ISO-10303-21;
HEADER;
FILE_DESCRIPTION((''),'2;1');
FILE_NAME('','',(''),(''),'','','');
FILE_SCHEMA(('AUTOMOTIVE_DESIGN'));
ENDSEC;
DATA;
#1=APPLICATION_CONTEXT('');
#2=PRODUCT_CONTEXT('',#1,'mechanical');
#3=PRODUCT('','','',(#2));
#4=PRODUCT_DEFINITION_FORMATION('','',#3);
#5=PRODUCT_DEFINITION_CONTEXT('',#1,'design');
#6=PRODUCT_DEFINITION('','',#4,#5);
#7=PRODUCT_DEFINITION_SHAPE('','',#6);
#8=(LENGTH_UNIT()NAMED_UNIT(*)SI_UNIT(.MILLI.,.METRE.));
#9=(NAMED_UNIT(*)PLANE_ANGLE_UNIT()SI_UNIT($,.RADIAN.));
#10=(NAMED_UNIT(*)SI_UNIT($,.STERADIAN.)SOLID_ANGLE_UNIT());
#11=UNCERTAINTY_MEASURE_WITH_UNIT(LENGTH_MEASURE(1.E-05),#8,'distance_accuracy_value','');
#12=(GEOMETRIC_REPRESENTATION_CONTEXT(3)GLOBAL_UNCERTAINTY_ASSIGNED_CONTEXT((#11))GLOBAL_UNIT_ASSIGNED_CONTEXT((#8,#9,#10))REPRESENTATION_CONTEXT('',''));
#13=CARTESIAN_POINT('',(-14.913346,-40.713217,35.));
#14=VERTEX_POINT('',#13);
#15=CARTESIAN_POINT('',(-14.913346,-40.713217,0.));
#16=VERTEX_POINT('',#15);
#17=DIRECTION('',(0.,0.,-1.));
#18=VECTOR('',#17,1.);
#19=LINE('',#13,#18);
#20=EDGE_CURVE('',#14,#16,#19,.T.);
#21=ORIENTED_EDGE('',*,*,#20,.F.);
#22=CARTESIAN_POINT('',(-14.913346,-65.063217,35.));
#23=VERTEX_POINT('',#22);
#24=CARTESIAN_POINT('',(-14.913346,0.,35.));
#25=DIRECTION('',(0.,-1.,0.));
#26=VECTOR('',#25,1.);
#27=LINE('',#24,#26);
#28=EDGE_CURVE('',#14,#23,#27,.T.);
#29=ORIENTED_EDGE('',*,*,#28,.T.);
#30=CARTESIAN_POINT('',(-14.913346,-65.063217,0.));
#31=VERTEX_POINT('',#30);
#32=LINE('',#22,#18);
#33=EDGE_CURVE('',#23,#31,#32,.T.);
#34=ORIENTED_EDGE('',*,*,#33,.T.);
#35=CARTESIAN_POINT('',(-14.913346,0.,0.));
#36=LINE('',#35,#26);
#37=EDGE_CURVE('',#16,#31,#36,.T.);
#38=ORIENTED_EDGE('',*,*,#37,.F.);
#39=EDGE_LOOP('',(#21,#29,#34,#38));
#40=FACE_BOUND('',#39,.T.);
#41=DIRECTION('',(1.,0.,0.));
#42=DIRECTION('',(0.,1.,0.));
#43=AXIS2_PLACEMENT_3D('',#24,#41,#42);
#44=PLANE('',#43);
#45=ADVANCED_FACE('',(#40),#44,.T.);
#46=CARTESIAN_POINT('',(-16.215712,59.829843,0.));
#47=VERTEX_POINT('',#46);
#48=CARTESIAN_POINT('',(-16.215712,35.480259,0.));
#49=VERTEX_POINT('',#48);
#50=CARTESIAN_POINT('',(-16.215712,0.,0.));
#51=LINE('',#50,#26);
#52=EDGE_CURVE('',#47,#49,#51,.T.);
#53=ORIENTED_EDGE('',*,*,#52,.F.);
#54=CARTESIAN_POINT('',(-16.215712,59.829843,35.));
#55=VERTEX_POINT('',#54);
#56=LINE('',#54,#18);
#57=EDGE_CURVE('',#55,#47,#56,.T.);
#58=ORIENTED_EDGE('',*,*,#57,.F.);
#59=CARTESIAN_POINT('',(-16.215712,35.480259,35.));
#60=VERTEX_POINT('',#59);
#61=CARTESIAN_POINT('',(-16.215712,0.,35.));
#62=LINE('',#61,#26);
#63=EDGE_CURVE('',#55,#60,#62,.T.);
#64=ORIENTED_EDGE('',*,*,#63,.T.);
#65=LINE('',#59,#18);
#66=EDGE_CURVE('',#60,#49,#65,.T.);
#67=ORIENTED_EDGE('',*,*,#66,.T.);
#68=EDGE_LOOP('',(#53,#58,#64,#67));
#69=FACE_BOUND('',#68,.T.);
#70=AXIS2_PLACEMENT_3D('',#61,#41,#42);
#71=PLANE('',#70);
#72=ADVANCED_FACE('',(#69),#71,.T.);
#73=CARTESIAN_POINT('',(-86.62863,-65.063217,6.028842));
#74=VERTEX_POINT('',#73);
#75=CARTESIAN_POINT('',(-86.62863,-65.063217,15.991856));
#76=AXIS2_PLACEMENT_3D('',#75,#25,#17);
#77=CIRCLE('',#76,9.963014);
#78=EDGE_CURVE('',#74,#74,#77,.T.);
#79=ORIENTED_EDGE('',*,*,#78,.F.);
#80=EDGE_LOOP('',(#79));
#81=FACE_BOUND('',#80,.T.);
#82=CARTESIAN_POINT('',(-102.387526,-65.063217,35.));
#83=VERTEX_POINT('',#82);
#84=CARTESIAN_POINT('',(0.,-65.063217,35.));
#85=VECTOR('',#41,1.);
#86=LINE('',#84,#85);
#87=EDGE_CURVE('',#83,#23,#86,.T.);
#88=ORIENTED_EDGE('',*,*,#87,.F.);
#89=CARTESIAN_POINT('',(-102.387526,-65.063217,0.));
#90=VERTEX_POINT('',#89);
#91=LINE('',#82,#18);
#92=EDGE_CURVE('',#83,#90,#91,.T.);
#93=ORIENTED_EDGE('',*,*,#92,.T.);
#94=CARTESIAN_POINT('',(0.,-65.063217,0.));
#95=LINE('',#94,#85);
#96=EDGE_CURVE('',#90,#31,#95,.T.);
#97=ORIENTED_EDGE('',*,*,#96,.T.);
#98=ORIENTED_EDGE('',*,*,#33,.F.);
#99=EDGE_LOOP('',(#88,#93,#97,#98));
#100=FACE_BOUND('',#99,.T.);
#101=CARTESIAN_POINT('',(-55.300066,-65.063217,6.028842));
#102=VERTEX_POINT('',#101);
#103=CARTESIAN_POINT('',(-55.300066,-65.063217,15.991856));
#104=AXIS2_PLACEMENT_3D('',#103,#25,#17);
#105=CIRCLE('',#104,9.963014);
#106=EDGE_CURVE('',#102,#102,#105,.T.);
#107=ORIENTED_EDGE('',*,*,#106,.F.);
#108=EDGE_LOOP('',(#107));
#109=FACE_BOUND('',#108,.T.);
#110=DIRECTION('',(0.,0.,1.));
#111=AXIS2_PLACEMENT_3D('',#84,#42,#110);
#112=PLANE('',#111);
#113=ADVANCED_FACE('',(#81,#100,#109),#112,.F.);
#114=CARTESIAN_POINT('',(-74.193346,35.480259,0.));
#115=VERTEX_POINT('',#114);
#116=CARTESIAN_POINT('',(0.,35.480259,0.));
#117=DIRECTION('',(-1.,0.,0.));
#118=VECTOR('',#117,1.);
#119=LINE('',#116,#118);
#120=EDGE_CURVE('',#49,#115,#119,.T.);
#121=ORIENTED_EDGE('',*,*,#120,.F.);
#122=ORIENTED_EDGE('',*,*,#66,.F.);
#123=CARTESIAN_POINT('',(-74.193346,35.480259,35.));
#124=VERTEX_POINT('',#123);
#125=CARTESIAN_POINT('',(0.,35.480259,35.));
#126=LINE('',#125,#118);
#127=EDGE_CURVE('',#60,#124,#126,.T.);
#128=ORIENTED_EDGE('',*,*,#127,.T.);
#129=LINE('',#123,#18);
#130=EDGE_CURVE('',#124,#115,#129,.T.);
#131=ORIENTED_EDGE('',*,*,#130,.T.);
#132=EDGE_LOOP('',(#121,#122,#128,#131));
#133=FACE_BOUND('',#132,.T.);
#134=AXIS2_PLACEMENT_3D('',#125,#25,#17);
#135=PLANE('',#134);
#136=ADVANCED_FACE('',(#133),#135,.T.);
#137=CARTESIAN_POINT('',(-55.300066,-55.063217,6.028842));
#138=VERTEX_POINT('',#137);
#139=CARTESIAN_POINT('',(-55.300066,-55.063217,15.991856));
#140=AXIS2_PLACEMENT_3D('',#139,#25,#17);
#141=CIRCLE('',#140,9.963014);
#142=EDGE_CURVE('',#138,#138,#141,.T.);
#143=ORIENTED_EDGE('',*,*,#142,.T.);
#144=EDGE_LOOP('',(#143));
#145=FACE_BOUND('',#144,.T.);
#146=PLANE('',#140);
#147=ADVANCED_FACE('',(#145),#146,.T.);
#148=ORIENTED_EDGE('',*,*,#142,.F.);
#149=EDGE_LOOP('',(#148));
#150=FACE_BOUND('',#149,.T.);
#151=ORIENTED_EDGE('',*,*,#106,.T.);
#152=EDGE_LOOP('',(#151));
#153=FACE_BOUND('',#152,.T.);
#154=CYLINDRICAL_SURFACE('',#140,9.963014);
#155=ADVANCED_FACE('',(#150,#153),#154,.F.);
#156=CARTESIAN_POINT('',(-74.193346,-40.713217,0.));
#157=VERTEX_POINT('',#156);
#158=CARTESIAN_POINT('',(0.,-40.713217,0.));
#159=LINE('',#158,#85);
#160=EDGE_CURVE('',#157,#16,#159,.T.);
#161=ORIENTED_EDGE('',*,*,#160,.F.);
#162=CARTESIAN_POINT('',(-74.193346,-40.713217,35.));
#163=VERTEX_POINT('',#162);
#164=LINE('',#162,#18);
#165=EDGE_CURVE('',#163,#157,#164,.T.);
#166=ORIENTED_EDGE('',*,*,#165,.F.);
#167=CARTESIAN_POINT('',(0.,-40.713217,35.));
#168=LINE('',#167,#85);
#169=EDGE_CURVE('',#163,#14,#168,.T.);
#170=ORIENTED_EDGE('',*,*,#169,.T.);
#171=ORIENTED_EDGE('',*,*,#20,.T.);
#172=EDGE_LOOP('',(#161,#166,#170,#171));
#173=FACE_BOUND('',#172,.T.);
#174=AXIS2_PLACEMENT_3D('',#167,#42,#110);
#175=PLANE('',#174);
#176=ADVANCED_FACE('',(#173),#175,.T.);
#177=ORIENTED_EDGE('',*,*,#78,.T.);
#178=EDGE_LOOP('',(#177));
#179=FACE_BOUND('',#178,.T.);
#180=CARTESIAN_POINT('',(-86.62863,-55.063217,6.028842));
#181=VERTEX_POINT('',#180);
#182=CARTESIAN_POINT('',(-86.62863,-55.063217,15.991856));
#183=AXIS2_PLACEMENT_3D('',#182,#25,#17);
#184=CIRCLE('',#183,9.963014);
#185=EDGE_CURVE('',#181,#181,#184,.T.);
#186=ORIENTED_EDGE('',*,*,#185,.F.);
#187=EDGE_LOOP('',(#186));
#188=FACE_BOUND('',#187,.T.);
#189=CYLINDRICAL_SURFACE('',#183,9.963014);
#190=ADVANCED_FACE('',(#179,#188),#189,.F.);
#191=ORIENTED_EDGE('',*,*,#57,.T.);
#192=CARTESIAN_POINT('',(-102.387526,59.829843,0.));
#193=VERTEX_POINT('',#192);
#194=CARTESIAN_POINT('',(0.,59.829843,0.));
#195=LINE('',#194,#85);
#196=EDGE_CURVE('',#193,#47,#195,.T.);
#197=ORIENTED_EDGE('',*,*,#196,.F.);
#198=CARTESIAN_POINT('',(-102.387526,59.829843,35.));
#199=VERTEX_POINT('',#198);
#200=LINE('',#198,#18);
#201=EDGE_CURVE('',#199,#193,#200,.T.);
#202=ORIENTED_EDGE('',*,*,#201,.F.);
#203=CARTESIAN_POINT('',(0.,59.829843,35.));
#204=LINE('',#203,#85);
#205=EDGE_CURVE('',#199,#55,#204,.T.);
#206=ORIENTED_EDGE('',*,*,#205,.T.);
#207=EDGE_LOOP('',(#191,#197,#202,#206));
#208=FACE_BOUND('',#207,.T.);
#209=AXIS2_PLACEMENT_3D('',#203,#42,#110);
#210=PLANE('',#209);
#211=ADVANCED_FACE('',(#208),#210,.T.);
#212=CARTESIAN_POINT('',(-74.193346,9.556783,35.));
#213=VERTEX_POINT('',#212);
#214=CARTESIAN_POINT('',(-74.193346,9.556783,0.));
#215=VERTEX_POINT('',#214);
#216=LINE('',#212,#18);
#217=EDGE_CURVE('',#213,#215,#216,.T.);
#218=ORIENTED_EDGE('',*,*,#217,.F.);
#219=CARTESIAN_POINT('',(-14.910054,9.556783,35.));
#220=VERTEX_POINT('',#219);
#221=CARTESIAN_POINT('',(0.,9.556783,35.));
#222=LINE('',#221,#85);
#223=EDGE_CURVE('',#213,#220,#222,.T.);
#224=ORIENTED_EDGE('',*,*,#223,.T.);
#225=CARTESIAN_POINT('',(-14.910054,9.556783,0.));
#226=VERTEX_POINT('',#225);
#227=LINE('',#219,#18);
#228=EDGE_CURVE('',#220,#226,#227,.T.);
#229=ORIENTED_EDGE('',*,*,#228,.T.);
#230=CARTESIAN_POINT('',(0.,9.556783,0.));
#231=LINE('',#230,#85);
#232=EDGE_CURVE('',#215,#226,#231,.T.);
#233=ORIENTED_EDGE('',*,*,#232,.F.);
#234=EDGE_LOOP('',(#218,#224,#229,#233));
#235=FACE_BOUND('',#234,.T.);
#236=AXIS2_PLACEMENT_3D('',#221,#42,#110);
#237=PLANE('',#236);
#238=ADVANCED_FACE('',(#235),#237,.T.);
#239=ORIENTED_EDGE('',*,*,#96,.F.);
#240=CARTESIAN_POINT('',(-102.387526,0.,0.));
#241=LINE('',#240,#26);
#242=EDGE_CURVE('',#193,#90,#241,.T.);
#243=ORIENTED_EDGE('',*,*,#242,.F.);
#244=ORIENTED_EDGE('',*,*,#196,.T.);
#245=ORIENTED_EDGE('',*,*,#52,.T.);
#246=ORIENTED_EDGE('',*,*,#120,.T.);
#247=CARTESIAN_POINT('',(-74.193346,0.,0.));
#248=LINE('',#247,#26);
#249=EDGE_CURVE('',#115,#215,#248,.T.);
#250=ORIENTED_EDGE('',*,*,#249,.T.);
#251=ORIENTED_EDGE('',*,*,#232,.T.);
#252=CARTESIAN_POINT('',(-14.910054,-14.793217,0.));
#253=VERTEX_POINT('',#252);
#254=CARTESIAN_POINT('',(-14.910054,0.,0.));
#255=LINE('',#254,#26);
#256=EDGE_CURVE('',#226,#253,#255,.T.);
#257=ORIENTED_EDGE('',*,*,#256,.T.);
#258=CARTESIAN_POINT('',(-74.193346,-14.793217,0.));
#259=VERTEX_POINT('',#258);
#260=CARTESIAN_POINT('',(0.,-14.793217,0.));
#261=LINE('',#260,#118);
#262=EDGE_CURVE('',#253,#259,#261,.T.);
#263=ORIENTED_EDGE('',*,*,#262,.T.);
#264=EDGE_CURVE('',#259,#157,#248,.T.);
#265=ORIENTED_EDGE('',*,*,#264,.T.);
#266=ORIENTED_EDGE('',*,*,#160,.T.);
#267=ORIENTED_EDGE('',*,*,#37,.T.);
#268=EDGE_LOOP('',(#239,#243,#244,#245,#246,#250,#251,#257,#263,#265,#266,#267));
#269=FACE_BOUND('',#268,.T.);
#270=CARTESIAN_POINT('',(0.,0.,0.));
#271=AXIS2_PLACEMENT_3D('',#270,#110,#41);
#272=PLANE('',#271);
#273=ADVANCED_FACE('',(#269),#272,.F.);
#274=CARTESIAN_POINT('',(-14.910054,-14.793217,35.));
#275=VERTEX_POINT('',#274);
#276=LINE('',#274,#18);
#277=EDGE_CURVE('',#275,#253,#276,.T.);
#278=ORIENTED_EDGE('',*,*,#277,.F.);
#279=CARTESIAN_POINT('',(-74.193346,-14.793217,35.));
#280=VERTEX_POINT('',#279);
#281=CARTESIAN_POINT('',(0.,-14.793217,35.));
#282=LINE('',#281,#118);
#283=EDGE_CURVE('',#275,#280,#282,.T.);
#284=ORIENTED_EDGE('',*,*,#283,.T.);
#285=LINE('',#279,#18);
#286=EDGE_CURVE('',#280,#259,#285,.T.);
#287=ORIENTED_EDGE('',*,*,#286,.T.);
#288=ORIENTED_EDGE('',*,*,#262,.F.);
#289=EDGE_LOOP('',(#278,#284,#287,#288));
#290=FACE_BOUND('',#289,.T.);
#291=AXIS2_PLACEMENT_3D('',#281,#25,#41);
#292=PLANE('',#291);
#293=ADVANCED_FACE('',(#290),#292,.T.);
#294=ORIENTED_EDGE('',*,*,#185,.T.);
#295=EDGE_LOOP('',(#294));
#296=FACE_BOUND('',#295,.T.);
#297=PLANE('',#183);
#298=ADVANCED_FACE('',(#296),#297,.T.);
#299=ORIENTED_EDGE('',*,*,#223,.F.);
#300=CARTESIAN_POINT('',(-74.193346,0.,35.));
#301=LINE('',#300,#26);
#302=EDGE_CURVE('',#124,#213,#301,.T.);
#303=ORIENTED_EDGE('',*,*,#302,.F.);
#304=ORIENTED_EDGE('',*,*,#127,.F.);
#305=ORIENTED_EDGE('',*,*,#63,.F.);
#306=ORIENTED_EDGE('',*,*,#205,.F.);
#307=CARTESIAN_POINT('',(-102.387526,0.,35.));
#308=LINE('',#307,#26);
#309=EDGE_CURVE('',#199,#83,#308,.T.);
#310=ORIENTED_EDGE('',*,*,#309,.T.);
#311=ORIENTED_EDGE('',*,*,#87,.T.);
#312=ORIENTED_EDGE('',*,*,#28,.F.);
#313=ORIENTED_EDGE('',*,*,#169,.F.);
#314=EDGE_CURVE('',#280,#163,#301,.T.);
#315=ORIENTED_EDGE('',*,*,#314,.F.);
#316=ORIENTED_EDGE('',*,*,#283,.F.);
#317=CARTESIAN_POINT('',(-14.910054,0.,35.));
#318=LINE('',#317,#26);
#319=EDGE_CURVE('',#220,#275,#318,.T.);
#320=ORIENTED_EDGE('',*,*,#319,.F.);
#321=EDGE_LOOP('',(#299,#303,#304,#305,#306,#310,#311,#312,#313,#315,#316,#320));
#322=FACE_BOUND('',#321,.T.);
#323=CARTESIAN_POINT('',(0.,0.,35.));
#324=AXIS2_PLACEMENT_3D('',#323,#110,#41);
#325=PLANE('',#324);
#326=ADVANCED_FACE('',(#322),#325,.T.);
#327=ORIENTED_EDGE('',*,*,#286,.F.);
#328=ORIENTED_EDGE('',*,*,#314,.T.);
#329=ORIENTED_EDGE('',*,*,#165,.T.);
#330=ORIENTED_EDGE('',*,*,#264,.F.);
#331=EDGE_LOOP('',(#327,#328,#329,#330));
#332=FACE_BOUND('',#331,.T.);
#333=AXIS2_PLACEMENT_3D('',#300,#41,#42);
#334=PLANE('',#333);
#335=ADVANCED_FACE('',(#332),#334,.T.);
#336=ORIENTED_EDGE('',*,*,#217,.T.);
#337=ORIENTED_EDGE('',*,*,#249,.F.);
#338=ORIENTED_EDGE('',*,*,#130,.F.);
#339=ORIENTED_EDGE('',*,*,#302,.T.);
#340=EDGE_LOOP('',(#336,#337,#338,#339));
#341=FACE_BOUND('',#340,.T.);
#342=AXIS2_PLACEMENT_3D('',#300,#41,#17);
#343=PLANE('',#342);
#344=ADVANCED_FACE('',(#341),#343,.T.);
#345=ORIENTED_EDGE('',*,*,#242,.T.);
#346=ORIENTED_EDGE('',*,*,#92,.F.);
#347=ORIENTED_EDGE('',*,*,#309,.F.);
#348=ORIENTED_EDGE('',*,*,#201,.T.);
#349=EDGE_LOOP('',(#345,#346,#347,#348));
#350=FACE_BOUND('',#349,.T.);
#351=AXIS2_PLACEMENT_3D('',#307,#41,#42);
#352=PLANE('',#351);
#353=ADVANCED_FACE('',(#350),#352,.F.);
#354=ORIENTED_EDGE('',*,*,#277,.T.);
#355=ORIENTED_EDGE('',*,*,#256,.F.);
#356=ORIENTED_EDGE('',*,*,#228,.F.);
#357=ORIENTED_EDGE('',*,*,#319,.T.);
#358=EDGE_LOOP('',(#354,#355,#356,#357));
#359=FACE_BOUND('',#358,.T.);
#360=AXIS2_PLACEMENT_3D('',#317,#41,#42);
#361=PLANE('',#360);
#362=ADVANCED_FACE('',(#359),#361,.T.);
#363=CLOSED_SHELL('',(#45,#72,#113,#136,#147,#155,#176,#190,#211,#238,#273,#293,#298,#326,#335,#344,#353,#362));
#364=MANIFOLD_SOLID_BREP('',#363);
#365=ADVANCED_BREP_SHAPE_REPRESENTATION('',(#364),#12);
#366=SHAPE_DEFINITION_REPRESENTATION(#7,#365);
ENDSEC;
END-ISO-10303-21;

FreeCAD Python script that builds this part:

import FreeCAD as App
import Part
import Sketcher
from FreeCAD import Vector


def add_polygon(sketch, points):
    """Adds a closed chain of lines whose ends are joined by coincident constraints."""
    first, n = sketch.GeometryCount, len(points)
    for a, b in zip(points, points[1:] + points[:1]):
        sketch.addGeometry(Part.LineSegment(App.Vector(*a, 0), App.Vector(*b, 0)), False)
    for i in range(n):
        sketch.addConstraint(Sketcher.Constraint("Coincident", first + i, 2, first + (i + 1) % n, 1))

doc = App.newDocument("Part")
body = doc.addObject("PartDesign::Body", "Body")

sketch1 = body.newObject("Sketcher::SketchObject", "Sketch")
sketch1.AttachmentSupport = (doc.getObject("XY_Plane"), [""])
sketch1.MapMode = "FlatFace"
add_polygon(sketch1, [(-16, 60), (-102, 60), (-102, -65), (-15, -65), (-15, -41), (-74, -41), (-74, -15), (-15, -15), (-15, 10), (-74, 10), (-74, 35), (-16, 35)])
sketch1.addConstraint(Sketcher.Constraint("Horizontal", 0))
sketch1.addConstraint(Sketcher.Constraint("Vertical", 1))
sketch1.addConstraint(Sketcher.Constraint("Horizontal", 2))
sketch1.addConstraint(Sketcher.Constraint("Vertical", 3))
sketch1.addConstraint(Sketcher.Constraint("Horizontal", 4))
sketch1.addConstraint(Sketcher.Constraint("Vertical", 5))
sketch1.addConstraint(Sketcher.Constraint("Horizontal", 6))
sketch1.addConstraint(Sketcher.Constraint("Vertical", 7))
sketch1.addConstraint(Sketcher.Constraint("Horizontal", 8))
sketch1.addConstraint(Sketcher.Constraint("Vertical", 9))
sketch1.addConstraint(Sketcher.Constraint("Horizontal", 10))
sketch1.addConstraint(Sketcher.Constraint("Vertical", 11))
sketch1.addConstraint(Sketcher.Constraint("Vertical", 5, 2, 8, 2))
sketch1.addConstraint(Sketcher.Constraint("Equal", 3, 7))
sketch1.addConstraint(Sketcher.Constraint("DistanceX", 4, 2, 4, 1, 59.28))
sketch1.addConstraint(Sketcher.Constraint("DistanceY", 3, 1, 3, 2, 24.35))
sketch1.addConstraint(Sketcher.Constraint("DistanceY", 5, 1, 5, 2, 25.92))
sketch1.addConstraint(Sketcher.Constraint("DistanceX", 2, 1, 2, 2, 87.47418))
sketch1.addConstraint(Sketcher.Constraint("DistanceY", 1, 2, 1, 1, 124.893061))
sketch1.addConstraint(Sketcher.Constraint("DistanceX", 0, 2, 0, 1, 86.171814))
sketch1.addConstraint(Sketcher.Constraint("DistanceX", 6, 1, 6, 2, 59.283292))
sketch1.addConstraint(Sketcher.Constraint("DistanceY", 9, 1, 9, 2, 25.923477))
sketch1.addConstraint(Sketcher.Constraint("DistanceY", -1, 1, 9, 2, 35.480259))
sketch1.addConstraint(Sketcher.Constraint("DistanceX", 0, 2, -1, 1, 102.387526))
pad1 = body.newObject("PartDesign::Pad", "Pad")
pad1.Profile = sketch1
pad1.Length = 35

sketch2 = body.newObject("Sketcher::SketchObject", "Sketch001")
sketch2.AttachmentSupport = (doc.getObject("XZ_Plane"), [""])
sketch2.MapMode = "FlatFace"
sketch2.AttachmentOffset = App.Placement(Vector(0, 0, 65.063217), App.Rotation())
sketch2.addGeometry(Part.Circle(Vector(-87, 16, 0), Vector(0, 0, 1), 10), False)
sketch2.addGeometry(Part.Circle(Vector(-55, 16, 0), Vector(0, 0, 1), 10), False)
sketch2.addConstraint(Sketcher.Constraint("Equal", 0, 1))
sketch2.addConstraint(Sketcher.Constraint("Horizontal", 0, 3, 1, 3))
sketch2.addConstraint(Sketcher.Constraint("Diameter", 0, 19.926027))
sketch2.addConstraint(Sketcher.Constraint("DistanceX", 0, 3, -1, 1, 86.62863))
sketch2.addConstraint(Sketcher.Constraint("DistanceY", -1, 1, 0, 3, 15.991856))
sketch2.addConstraint(Sketcher.Constraint("DistanceX", 1, 3, -1, 1, 55.300066))
pocket1 = body.newObject("PartDesign::Pocket", "Pocket")
pocket1.Profile = sketch2
pocket1.Length = 10

doc.recompute()
